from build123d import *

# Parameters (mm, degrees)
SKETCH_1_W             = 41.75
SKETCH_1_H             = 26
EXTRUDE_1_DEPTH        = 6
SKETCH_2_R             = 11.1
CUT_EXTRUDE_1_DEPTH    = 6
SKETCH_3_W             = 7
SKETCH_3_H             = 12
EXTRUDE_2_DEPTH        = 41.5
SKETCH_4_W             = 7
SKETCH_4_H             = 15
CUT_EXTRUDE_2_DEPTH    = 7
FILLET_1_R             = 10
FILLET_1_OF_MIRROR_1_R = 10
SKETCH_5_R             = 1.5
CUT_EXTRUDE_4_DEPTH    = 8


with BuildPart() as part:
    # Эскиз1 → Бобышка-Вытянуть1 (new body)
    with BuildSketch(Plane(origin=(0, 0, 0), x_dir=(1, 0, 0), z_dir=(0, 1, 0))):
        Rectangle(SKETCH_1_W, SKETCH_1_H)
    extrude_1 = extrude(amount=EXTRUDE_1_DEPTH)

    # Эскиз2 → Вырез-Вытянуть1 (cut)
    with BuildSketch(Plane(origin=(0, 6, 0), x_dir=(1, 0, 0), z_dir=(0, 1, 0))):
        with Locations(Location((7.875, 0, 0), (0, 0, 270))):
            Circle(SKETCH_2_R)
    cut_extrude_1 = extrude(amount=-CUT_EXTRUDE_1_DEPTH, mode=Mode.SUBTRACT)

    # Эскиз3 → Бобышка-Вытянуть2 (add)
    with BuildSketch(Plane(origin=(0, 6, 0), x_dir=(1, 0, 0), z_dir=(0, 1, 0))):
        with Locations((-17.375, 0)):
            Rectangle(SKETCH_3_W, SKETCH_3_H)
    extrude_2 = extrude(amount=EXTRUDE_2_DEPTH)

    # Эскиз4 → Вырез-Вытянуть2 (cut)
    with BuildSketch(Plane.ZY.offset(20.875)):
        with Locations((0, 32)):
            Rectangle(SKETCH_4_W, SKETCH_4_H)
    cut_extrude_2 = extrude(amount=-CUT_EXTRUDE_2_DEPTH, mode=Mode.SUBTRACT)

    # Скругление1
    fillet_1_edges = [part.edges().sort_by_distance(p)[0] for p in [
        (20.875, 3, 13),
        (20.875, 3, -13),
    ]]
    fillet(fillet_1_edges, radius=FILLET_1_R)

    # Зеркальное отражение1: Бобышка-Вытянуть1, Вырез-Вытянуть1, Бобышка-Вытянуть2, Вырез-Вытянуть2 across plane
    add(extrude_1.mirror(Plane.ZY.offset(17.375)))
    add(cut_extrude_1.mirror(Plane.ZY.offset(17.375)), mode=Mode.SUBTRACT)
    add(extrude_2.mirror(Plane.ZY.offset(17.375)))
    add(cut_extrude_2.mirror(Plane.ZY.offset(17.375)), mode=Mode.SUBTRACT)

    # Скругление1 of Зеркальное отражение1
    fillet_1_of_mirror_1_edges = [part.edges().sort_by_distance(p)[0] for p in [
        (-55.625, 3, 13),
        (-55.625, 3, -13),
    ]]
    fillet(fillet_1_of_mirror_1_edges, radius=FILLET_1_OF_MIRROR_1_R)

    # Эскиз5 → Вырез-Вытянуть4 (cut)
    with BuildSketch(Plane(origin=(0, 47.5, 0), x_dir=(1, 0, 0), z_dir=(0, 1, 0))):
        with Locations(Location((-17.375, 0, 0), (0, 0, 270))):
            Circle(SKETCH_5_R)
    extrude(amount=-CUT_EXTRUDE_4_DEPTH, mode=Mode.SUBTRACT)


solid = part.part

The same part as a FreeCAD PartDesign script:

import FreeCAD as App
import Part
import Sketcher

V = App.Vector


def edges_at(feature, points):
    """Names of the edges that pass closest to the given points."""
    edges = feature.Shape.Edges
    near = lambda p: min(range(len(edges)), key=lambda i: edges[i].distToShape(Part.Vertex(*p))[0])
    return sorted({f"Edge{near(p) + 1}" for p in points})

doc = App.newDocument("Part")
params = doc.addObject("Spreadsheet::Sheet", "Params")
for row, (alias, value) in enumerate([
    ("sketch1_height", "26 mm"),
    ("sketch1_width", "41.75 mm"),
    ("pad1_length", "6 mm"),
    ("sketch2_diameter", "22.2 mm"),
    ("pocket1_length", "6 mm"),
    ("sketch3_width", "7 mm"),
    ("sketch3_height", "12 mm"),
    ("pad2_length", "41.5 mm"),
    ("sketch4_width", "15 mm"),
    ("sketch4_height", "7 mm"),
    ("pocket2_length", "7 mm"),
    ("fillet_radius", "10 mm"),
    ("fillet2_radius", "10 mm"),
    ("sketch5_diameter", "3 mm"),
    ("pocket3_length", "8 mm"),
], start=1):
    params.set(f"A{row}", alias)
    params.set(f"B{row}", "=" + value)
    params.setAlias(f"B{row}", alias)

body = doc.addObject("PartDesign::Body", "Body")

sketch1 = doc.addObject("Sketcher::SketchObject", "Sketch")
body.addObject(sketch1)
sketch1.AttachmentSupport = (doc.XZ_Plane, [""])
sketch1.MapMode = "FlatFace"
sketch1.addGeometry([
    Part.LineSegment(V(-21, -13, 0), V(-21, 13, 0)),
    Part.LineSegment(V(-21, 13, 0), V(21, 13, 0)),
    Part.LineSegment(V(21, 13, 0), V(21, -13, 0)),
    Part.LineSegment(V(21, -13, 0), V(-21, -13, 0)),
], False)
sketch1.addConstraint([
    Sketcher.Constraint("Coincident", 0, 2, 1, 1),
    Sketcher.Constraint("Coincident", 1, 2, 2, 1),
    Sketcher.Constraint("Coincident", 2, 2, 3, 1),
    Sketcher.Constraint("Coincident", 3, 2, 0, 1),
    Sketcher.Constraint("Vertical", 0),
    Sketcher.Constraint("Horizontal", 1),
    Sketcher.Constraint("Vertical", 2),
    Sketcher.Constraint("Horizontal", 3),
    Sketcher.Constraint("Symmetric", 0, 2, 2, 2, -1, 1),
    Sketcher.Constraint("DistanceY", 0, 1, 0, 2, 26.0),
    Sketcher.Constraint("DistanceX", 1, 1, 1, 2, 41.75),
])
sketch1.setExpression("Constraints[9]", "Params.sketch1_height")
sketch1.setExpression("Constraints[10]", "Params.sketch1_width")
pad1 = doc.addObject("PartDesign::Pad", "Pad")
body.addObject(pad1)
pad1.Profile = sketch1
pad1.setExpression("Length", "Params.pad1_length")
pad1.Reversed = True

sketch2 = doc.addObject("Sketcher::SketchObject", "Sketch001")
body.addObject(sketch2)
sketch2.AttachmentSupport = (doc.XZ_Plane, [""])
sketch2.MapMode = "FlatFace"
sketch2.AttachmentOffset = App.Placement(V(0, 0, -6), App.Rotation())
sketch2.addGeometry(Part.Circle(V(8, 0, 0), V(0, 0, 1), 11), False)
sketch2.addConstraint([
    Sketcher.Constraint("PointOnObject", 0, 3, -1),
    Sketcher.Constraint("Diameter", 0, 22.2),
    Sketcher.Constraint("DistanceX", -1, 1, 0, 3, 7.875),
])
sketch2.setExpression("Constraints[1]", "Params.sketch2_diameter")
pocket1 = doc.addObject("PartDesign::Pocket", "Pocket")
body.addObject(pocket1)
pocket1.Profile = sketch2
pocket1.setExpression("Length", "Params.pocket1_length")
pocket1.Reversed = True

sketch3 = doc.addObject("Sketcher::SketchObject", "Sketch002")
body.addObject(sketch3)
sketch3.AttachmentSupport = (doc.XZ_Plane, [""])
sketch3.MapMode = "FlatFace"
sketch3.AttachmentOffset = App.Placement(V(0, 0, -6), App.Rotation())
sketch3.addGeometry([
    Part.LineSegment(V(-21, -6, 0), V(-21, 6, 0)),
    Part.LineSegment(V(-21, 6, 0), V(-14, 6, 0)),
    Part.LineSegment(V(-14, 6, 0), V(-14, -6, 0)),
    Part.LineSegment(V(-14, -6, 0), V(-21, -6, 0)),
], False)
sketch3.addConstraint([
    Sketcher.Constraint("Coincident", 0, 2, 1, 1),
    Sketcher.Constraint("Coincident", 1, 2, 2, 1),
    Sketcher.Constraint("Coincident", 2, 2, 3, 1),
    Sketcher.Constraint("Coincident", 3, 2, 0, 1),
    Sketcher.Constraint("Vertical", 0),
    Sketcher.Constraint("Horizontal", 1),
    Sketcher.Constraint("Vertical", 2),
    Sketcher.Constraint("Horizontal", 3),
    Sketcher.Constraint("DistanceX", 1, 1, 1, 2, 7.0),
    Sketcher.Constraint("DistanceY", 0, 1, 0, 2, 12.0),
    Sketcher.Constraint("DistanceY", -1, 1, 0, 2, 6.0),
    Sketcher.Constraint("DistanceX", 0, 2, -1, 1, 20.875),
])
sketch3.setExpression("Constraints[8]", "Params.sketch3_width")
sketch3.setExpression("Constraints[9]", "Params.sketch3_height")
pad2 = doc.addObject("PartDesign::Pad", "Pad001")
body.addObject(pad2)
pad2.Profile = sketch3
pad2.setExpression("Length", "Params.pad2_length")
pad2.Reversed = True

sketch4 = doc.addObject("Sketcher::SketchObject", "Sketch003")
body.addObject(sketch4)
sketch4.AttachmentSupport = (doc.YZ_Plane, [""])
sketch4.MapMode = "FlatFace"
sketch4.AttachmentOffset = App.Placement(V(0, 0, -20.875), App.Rotation())
sketch4.addGeometry([
    Part.LineSegment(V(40, -4, 0), V(24, -4, 0)),
    Part.LineSegment(V(24, -4, 0), V(24, 4, 0)),
    Part.LineSegment(V(24, 4, 0), V(40, 4, 0)),
    Part.LineSegment(V(40, 4, 0), V(40, -4, 0)),
], False)
sketch4.addConstraint([
    Sketcher.Constraint("Coincident", 0, 2, 1, 1),
    Sketcher.Constraint("Coincident", 1, 2, 2, 1),
    Sketcher.Constraint("Coincident", 2, 2, 3, 1),
    Sketcher.Constraint("Coincident", 3, 2, 0, 1),
    Sketcher.Constraint("Horizontal", 0),
    Sketcher.Constraint("Vertical", 1),
    Sketcher.Constraint("Horizontal", 2),
    Sketcher.Constraint("Vertical", 3),
    Sketcher.Constraint("DistanceX", 0, 2, 0, 1, 15.0),
    Sketcher.Constraint("DistanceY", 1, 1, 1, 2, 7.0),
    Sketcher.Constraint("DistanceX", -1, 1, 0, 2, 24.5),
    Sketcher.Constraint("DistanceY", 0, 2, -1, 1, 3.5),
])
sketch4.setExpression("Constraints[8]", "Params.sketch4_width")
sketch4.setExpression("Constraints[9]", "Params.sketch4_height")
pocket2 = doc.addObject("PartDesign::Pocket", "Pocket001")
body.addObject(pocket2)
pocket2.Profile = sketch4
pocket2.setExpression("Length", "Params.pocket2_length")
pocket2.Reversed = True
doc.recompute()

fillet = doc.addObject("PartDesign::Fillet", "Fillet")
body.addObject(fillet)
fillet.Base = (pocket2, edges_at(pocket2, [(20.875, 3, 13), (20.875, 3, -13)]))
fillet.setExpression("Radius", "Params.fillet_radius")
doc.recompute()

datumplane = doc.addObject("PartDesign::Plane", "DatumPlane")
body.addObject(datumplane)
datumplane.AttachmentSupport = (doc.YZ_Plane, [""])
datumplane.MapMode = "FlatFace"
datumplane.AttachmentOffset = App.Placement(V(0, 0, -17.375), App.Rotation())
mirrored = doc.addObject("PartDesign::Mirrored", "Mirrored")
body.addObject(mirrored)
mirrored.Originals = [pad1, pocket1, pad2, pocket2]
mirrored.MirrorPlane = (datumplane, [""])
body.Tip = mirrored
doc.recompute()

fillet2 = doc.addObject("PartDesign::Fillet", "Fillet001")
body.addObject(fillet2)
fillet2.Base = (mirrored, edges_at(mirrored, [(-55.625, 3, 13), (-55.625, 3, -13)]))
fillet2.setExpression("Radius", "Params.fillet2_radius")

sketch5 = doc.addObject("Sketcher::SketchObject", "Sketch004")
body.addObject(sketch5)
sketch5.AttachmentSupport = (doc.XZ_Plane, [""])
sketch5.MapMode = "FlatFace"
sketch5.AttachmentOffset = App.Placement(V(0, 0, -47.5), App.Rotation())
sketch5.addGeometry(Part.Circle(V(-17.4, 0, 0), V(0, 0, 1), 1.5), False)
sketch5.addConstraint([
    Sketcher.Constraint("PointOnObject", 0, 3, -1),
    Sketcher.Constraint("Diameter", 0, 3.0),
    Sketcher.Constraint("DistanceX", 0, 3, -1, 1, 17.375),
])
sketch5.setExpression("Constraints[1]", "Params.sketch5_diameter")
pocket3 = doc.addObject("PartDesign::Pocket", "Pocket002")
body.addObject(pocket3)
pocket3.Profile = sketch5
pocket3.setExpression("Length", "Params.pocket3_length")
pocket3.Reversed = True

doc.recompute()
